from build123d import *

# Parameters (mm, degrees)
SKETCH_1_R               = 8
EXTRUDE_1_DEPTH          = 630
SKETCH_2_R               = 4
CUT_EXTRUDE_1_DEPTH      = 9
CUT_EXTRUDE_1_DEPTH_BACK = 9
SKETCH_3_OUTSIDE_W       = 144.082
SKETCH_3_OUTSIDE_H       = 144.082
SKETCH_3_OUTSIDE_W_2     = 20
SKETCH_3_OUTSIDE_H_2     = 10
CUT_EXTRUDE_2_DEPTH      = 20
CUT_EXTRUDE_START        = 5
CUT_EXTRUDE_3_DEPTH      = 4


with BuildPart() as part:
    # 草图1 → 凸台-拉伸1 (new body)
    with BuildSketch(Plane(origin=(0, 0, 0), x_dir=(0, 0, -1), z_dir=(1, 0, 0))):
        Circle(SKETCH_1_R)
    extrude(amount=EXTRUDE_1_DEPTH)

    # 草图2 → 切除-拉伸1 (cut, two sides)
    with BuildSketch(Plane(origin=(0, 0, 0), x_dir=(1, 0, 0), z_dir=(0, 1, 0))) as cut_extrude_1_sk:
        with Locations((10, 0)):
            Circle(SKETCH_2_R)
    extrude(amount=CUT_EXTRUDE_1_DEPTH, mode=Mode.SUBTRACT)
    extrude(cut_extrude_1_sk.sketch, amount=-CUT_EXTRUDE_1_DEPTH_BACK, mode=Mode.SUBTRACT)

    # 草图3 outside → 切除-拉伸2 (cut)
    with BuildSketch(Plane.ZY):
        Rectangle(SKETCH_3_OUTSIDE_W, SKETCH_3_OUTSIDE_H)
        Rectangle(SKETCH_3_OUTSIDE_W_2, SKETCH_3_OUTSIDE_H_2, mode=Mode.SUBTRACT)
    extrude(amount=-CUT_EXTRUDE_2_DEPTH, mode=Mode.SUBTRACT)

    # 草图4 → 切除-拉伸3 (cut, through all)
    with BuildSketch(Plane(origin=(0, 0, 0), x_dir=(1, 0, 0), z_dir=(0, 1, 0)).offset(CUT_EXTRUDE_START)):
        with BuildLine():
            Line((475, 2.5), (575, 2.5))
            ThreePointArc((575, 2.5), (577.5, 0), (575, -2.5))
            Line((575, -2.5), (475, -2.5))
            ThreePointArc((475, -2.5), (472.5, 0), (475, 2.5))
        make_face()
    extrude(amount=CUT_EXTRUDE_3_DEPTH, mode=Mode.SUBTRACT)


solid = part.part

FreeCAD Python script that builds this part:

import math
import FreeCAD as App
import Part
import Sketcher
Q = App.Units.Quantity


def add_polygon(sketch, points):
    """Adds a closed chain of lines whose ends are joined by coincident constraints."""
    first, n = sketch.GeometryCount, len(points)
    for a, b in zip(points, points[1:] + points[:1]):
        sketch.addGeometry(Part.LineSegment(App.Vector(*a, 0), App.Vector(*b, 0)), False)
    for i in range(n):
        sketch.addConstraint(Sketcher.Constraint("Coincident", first + i, 2, first + (i + 1) % n, 1))

doc = App.newDocument("Part")
params = doc.addObject("Spreadsheet::Sheet", "Params")
for row, (alias, value) in enumerate([
    ("sketch1_diameter", "16 mm"),
    ("pad1_length", "630 mm"),
    ("sketch2_diameter", "8 mm"),
    ("sketch3_width", "10 mm"),
    ("sketch3_height", "20 mm"),
    ("pocket2_length", "20 mm"),
    ("sketch4_radius", "2.5 mm"),
    ("sketch4_width", "100 mm"),
], start=1):
    params.set(f"A{row}", alias)
    params.set(f"B{row}", "=" + value)
    params.setAlias(f"B{row}", alias)

body = doc.addObject("PartDesign::Body", "Body")

sketch1 = body.newObject("Sketcher::SketchObject", "Sketch")
sketch1.AttachmentSupport = (doc.getObject("YZ_Plane"), [""])
sketch1.MapMode = "FlatFace"
sketch1.addGeometry(Part.Circle(App.Vector(0, 0, 0), App.Vector(0, 0, 1), 8), False)
sketch1.addConstraint([
    Sketcher.Constraint("Coincident", 0, 3, -1, 1),
    Sketcher.Constraint("Diameter", 0, Q("16 mm")),
])
sketch1.setExpression("Constraints[1]", "Params.sketch1_diameter")
pad1 = body.newObject("PartDesign::Pad", "Pad")
pad1.Profile = sketch1
pad1.setExpression("Length", "Params.pad1_length")

sketch2 = body.newObject("Sketcher::SketchObject", "Sketch001")
sketch2.AttachmentSupport = (doc.getObject("XZ_Plane"), [""])
sketch2.MapMode = "FlatFace"
sketch2.addGeometry(Part.Circle(App.Vector(10, 0, 0), App.Vector(0, 0, 1), 4), False)
sketch2.addConstraint([
    Sketcher.Constraint("PointOnObject", 0, 3, -1),
    Sketcher.Constraint("Diameter", 0, Q("8 mm")),
    Sketcher.Constraint("DistanceX", -1, 1, 0, 3, Q("10 mm")),
])
sketch2.setExpression("Constraints[1]", "Params.sketch2_diameter")
pocket1 = body.newObject("PartDesign::Pocket", "Pocket")
pocket1.Profile = sketch2
pocket1.Type = "ThroughAll"
pocket1.Midplane = True

sketch3 = body.newObject("Sketcher::SketchObject", "Sketch002")
sketch3.AttachmentSupport = (doc.getObject("YZ_Plane"), [""])
sketch3.MapMode = "FlatFace"
add_polygon(sketch3, [(72, -72), (-72, -72), (-72, 72), (72, 72)])
add_polygon(sketch3, [(-5, 10), (-5, -10), (5, -10), (5, 10)])
sketch3.addConstraint([
    Sketcher.Constraint("Horizontal", 0),
    Sketcher.Constraint("Vertical", 1),
    Sketcher.Constraint("Horizontal", 2),
    Sketcher.Constraint("Vertical", 3),
    Sketcher.Constraint("Vertical", 4),
    Sketcher.Constraint("Horizontal", 5),
    Sketcher.Constraint("Vertical", 6),
    Sketcher.Constraint("Horizontal", 7),
    Sketcher.Constraint("Symmetric", 0, 2, 2, 2, -1, 1),
    Sketcher.Constraint("Symmetric", 4, 2, 6, 2, -1, 1),
    Sketcher.Constraint("Equal", 2, 1),
    Sketcher.Constraint("DistanceX", 5, 1, 5, 2, Q("10 mm")),
    Sketcher.Constraint("DistanceY", 4, 2, 4, 1, Q("20 mm")),
    Sketcher.Constraint("DistanceX", 0, 2, 0, 1, Q("144.082 mm")),
])
sketch3.setExpression("Constraints[19]", "Params.sketch3_width")
sketch3.setExpression("Constraints[20]", "Params.sketch3_height")
pocket2 = body.newObject("PartDesign::Pocket", "Pocket001")
pocket2.Profile = sketch3
pocket2.setExpression("Length", "Params.pocket2_length")
pocket2.Reversed = True

sketch4 = body.newObject("Sketcher::SketchObject", "Sketch003")
sketch4.AttachmentSupport = (doc.getObject("XZ_Plane"), [""])
sketch4.MapMode = "FlatFace"
sketch4.AttachmentOffset = App.Placement(App.Vector(0, 0, -5), App.Rotation())
sketch4.addGeometry([
    Part.LineSegment(App.Vector(575, -2.5, 0), App.Vector(475, -2.5, 0)),
    Part.ArcOfCircle(Part.Circle(App.Vector(475, 0, 0), App.Vector(0, 0, 1), 2.5), math.radians(90), math.radians(270)),
    Part.LineSegment(App.Vector(475, 2.5, 0), App.Vector(575, 2.5, 0)),
    Part.ArcOfCircle(Part.Circle(App.Vector(575, 0, 0), App.Vector(0, 0, 1), 2.5), math.radians(-90), math.radians(90)),
], False)
sketch4.addConstraint([
    Sketcher.Constraint("Tangent", 0, 2, 1, 2),
    Sketcher.Constraint("Tangent", 1, 1, 2, 1),
    Sketcher.Constraint("Tangent", 2, 2, 3, 2),
    Sketcher.Constraint("Tangent", 3, 1, 0, 1),
    Sketcher.Constraint("Horizontal", 0),
    Sketcher.Constraint("Horizontal", 2),
    Sketcher.Constraint("PointOnObject", 1, 3, -1),
    Sketcher.Constraint("Radius", 1, Q("2.5 mm")),
    Sketcher.Constraint("DistanceX", 0, 2, 0, 1, Q("100 mm")),
    Sketcher.Constraint("DistanceX", -1, 1, 1, 3, Q("475 mm")),
])
sketch4.setExpression("Constraints[7]", "Params.sketch4_radius")
sketch4.setExpression("Constraints[8]", "Params.sketch4_width")
pocket3 = body.newObject("PartDesign::Pocket", "Pocket002")
pocket3.Profile = sketch4
pocket3.Type = "ThroughAll"

doc.recompute()
